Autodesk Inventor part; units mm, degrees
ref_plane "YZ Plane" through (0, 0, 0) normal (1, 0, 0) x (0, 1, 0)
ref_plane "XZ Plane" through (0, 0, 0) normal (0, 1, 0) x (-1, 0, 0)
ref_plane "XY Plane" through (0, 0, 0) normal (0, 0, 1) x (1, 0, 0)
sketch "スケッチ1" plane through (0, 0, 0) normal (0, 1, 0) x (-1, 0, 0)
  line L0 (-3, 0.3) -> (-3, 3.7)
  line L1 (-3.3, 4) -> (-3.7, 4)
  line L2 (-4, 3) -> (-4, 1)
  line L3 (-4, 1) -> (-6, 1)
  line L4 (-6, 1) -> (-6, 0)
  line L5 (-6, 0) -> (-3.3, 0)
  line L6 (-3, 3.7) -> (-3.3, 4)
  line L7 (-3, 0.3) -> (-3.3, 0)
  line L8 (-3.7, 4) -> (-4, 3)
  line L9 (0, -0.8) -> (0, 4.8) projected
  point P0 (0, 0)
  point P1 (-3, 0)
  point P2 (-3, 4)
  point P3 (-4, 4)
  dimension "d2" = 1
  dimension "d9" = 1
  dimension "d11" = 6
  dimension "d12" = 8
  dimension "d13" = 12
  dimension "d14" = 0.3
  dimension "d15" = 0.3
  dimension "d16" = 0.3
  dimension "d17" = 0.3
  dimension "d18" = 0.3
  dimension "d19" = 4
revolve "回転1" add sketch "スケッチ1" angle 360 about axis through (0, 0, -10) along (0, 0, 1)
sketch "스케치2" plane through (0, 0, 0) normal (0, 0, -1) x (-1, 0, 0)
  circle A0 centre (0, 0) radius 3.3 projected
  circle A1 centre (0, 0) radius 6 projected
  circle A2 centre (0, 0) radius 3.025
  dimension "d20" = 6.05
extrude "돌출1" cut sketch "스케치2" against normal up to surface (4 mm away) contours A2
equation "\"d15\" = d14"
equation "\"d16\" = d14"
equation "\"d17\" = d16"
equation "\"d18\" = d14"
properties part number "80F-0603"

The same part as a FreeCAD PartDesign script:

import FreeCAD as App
import Part
import Sketcher
from FreeCAD import Vector
Q = App.Units.Quantity

doc = App.newDocument("Part")
body = doc.addObject("PartDesign::Body", "Body")

# Sketch on XZ plane
sketch1 = body.newObject("Sketcher::SketchObject", "Sketch")
sketch1.AttachmentSupport = (doc.getObject("XZ_Plane"), [""])
sketch1.MapMode = "FlatFace"
sketch1.addGeometry([
    Part.LineSegment(Vector(3.3, 0, 0), Vector(3, 0.3, 0)),  # 0
    Part.LineSegment(Vector(3, 0.3, 0), Vector(3, 3.7, 0)),  # 1
    Part.LineSegment(Vector(3, 3.7, 0), Vector(3.3, 4, 0)),  # 2
    Part.LineSegment(Vector(3.3, 4, 0), Vector(3.7, 4, 0)),  # 3
    Part.LineSegment(Vector(3.7, 4, 0), Vector(4, 3, 0)),  # 4
    Part.LineSegment(Vector(4, 3, 0), Vector(4, 1, 0)),  # 5
    Part.LineSegment(Vector(4, 1, 0), Vector(6, 1, 0)),  # 6
    Part.LineSegment(Vector(6, 1, 0), Vector(6, 0, 0)),  # 7
    Part.LineSegment(Vector(6, 0, 0), Vector(3.3, 0, 0)),  # 8
], False)
sketch1.addConstraint([
    Sketcher.Constraint("Coincident", 0, 2, 1, 1),
    Sketcher.Constraint("Coincident", 1, 2, 2, 1),
    Sketcher.Constraint("Coincident", 2, 2, 3, 1),
    Sketcher.Constraint("Coincident", 3, 2, 4, 1),
    Sketcher.Constraint("Coincident", 4, 2, 5, 1),
    Sketcher.Constraint("Coincident", 5, 2, 6, 1),
    Sketcher.Constraint("Coincident", 6, 2, 7, 1),
    Sketcher.Constraint("Coincident", 7, 2, 8, 1),
    Sketcher.Constraint("Coincident", 8, 2, 0, 1),
    Sketcher.Constraint("Vertical", 1),
    Sketcher.Constraint("Horizontal", 3),
    Sketcher.Constraint("Vertical", 5),
    Sketcher.Constraint("Horizontal", 6),
    Sketcher.Constraint("Vertical", 7),
    Sketcher.Constraint("Horizontal", 8),
    Sketcher.Constraint("PointOnObject", 7, 2, -1),
    Sketcher.Constraint("Perpendicular", 0, 2),
    Sketcher.Constraint("Vertical", 2, 2, 8, 2),
    Sketcher.Constraint("Equal", 6, 5),
    Sketcher.Constraint("Equal", 0, 2),
    Sketcher.Constraint("DistanceY", 7, 2, 7, 1, Q("1 mm")),
    Sketcher.Constraint("DistanceY", -1, 1, 2, 2, Q("4 mm")),
    Sketcher.Constraint("DistanceX", -1, 1, 4, 2, Q("4 mm")),
    Sketcher.Constraint("DistanceX", -1, 1, 6, 2, Q("6 mm")),
    Sketcher.Constraint("DistanceX", 1, 2, 4, 2, Q("1 mm")),
    Sketcher.Constraint("DistanceY", -1, 1, 0, 2, Q("0.3 mm")),
    Sketcher.Constraint("DistanceX", 3, 2, 4, 2, Q("0.3 mm")),
])
revolution = body.newObject("PartDesign::Revolution", "Revolution")
revolution.Profile = sketch1
revolution.ReferenceAxis = (sketch1, ["V_Axis"])
revolution.Angle = 360

# Sketch on XY plane
sketch2 = body.newObject("Sketcher::SketchObject", "Sketch001")
sketch2.AttachmentSupport = (doc.getObject("XY_Plane"), [""])
sketch2.MapMode = "FlatFace"
sketch2.addGeometry(Part.Circle(Vector(0, 0, 0), Vector(0, 0, 1), 3), False)
sketch2.addConstraint([
    Sketcher.Constraint("Coincident", 0, 3, -1, 1),
    Sketcher.Constraint("Diameter", 0, Q("6.05 mm")),
])
pocket1 = body.newObject("PartDesign::Pocket", "Pocket")
pocket1.Profile = sketch2
pocket1.Length = 4
pocket1.Reversed = True

doc.recompute()
